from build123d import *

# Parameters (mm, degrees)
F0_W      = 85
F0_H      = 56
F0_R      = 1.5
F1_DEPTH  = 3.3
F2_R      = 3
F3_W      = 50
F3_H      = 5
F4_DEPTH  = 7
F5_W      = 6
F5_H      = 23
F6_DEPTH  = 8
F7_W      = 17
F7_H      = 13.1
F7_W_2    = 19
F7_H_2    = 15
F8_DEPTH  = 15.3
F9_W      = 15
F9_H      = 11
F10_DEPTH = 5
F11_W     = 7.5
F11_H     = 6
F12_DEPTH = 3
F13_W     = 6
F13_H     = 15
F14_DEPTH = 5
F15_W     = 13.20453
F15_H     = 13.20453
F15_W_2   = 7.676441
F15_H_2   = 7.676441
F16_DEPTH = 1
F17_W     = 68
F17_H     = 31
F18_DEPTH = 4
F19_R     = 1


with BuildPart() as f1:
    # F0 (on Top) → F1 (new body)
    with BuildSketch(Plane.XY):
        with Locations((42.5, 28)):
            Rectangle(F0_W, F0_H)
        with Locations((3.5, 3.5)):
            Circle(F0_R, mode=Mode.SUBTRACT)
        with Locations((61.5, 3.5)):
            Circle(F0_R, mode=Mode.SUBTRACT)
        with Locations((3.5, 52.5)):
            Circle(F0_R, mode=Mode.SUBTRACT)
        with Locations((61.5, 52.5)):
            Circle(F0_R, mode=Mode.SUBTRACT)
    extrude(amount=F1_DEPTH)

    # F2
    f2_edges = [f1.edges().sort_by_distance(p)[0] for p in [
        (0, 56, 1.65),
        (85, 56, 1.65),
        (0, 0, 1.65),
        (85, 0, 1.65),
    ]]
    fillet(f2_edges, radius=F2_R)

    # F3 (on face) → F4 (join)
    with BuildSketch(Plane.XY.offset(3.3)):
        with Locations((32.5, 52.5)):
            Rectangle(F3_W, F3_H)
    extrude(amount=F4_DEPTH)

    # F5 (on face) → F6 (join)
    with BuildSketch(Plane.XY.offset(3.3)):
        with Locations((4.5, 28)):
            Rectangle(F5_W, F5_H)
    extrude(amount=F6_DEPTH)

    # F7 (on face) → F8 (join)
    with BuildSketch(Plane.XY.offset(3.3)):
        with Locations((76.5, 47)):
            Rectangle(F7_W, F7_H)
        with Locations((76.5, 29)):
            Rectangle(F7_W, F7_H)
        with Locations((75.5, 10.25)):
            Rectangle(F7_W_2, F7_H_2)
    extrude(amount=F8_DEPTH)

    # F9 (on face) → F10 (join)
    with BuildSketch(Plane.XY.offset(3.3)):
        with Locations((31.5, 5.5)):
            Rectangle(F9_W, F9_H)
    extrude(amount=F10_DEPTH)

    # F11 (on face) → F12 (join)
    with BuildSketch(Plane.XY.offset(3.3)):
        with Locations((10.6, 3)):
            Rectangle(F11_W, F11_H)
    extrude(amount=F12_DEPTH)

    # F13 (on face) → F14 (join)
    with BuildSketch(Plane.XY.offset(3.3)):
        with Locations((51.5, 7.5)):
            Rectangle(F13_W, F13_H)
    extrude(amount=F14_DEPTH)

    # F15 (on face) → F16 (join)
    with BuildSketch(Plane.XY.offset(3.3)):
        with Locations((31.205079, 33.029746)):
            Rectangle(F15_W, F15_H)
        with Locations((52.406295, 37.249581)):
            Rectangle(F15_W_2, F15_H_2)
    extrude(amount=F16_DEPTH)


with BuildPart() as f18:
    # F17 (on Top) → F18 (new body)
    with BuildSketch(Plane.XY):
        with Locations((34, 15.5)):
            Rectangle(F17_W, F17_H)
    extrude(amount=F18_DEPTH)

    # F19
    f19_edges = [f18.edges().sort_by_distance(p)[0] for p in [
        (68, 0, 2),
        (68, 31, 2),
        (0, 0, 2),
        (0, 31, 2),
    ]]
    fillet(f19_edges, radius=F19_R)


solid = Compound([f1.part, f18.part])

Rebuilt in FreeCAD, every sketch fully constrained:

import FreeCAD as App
import Part
import Sketcher
from FreeCAD import Vector
Q = App.Units.Quantity


def edges_at(feature, points):
    """Names of the edges that pass closest to the given points."""
    edges = feature.Shape.Edges
    near = lambda p: min(range(len(edges)), key=lambda i: edges[i].distToShape(Part.Vertex(*p))[0])
    return sorted({f"Edge{near(p) + 1}" for p in points})

doc = App.newDocument("Part")
body = doc.addObject("PartDesign::Body", "Body")

sketch1 = doc.addObject("Sketcher::SketchObject", "Sketch")
body.addObject(sketch1)
sketch1.AttachmentSupport = (doc.XY_Plane, [""])
sketch1.MapMode = "FlatFace"
sketch1.addGeometry([
    Part.LineSegment(Vector(0, 56, 0), Vector(0, 0, 0)),
    Part.LineSegment(Vector(0, 0, 0), Vector(85, 0, 0)),
    Part.LineSegment(Vector(85, 0, 0), Vector(85, 56, 0)),
    Part.LineSegment(Vector(85, 56, 0), Vector(0, 56, 0)),
    Part.Circle(Vector(3.5, 3.5, 0), Vector(0, 0, 1), 1.5),
    Part.Circle(Vector(61.5, 3.5, 0), Vector(0, 0, 1), 1.5),
    Part.Circle(Vector(3.5, 52.5, 0), Vector(0, 0, 1), 1.5),
    Part.Circle(Vector(61.5, 52.5, 0), Vector(0, 0, 1), 1.5),
], False)
sketch1.addConstraint([
    Sketcher.Constraint("Coincident", 0, 2, 1, 1),
    Sketcher.Constraint("Coincident", 1, 2, 2, 1),
    Sketcher.Constraint("Coincident", 2, 2, 3, 1),
    Sketcher.Constraint("Coincident", 3, 2, 0, 1),
    Sketcher.Constraint("Vertical", 0),
    Sketcher.Constraint("Horizontal", 1),
    Sketcher.Constraint("Vertical", 2),
    Sketcher.Constraint("Horizontal", 3),
    Sketcher.Constraint("Coincident", 0, 2, -1, 1),
    Sketcher.Constraint("Equal", 4, 5),
    Sketcher.Constraint("Equal", 5, 6),
    Sketcher.Constraint("Equal", 6, 7),
    Sketcher.Constraint("Horizontal", 4, 3, 5, 3),
    Sketcher.Constraint("Horizontal", 6, 3, 7, 3),
    Sketcher.Constraint("Vertical", 4, 3, 6, 3),
    Sketcher.Constraint("Vertical", 5, 3, 7, 3),
    Sketcher.Constraint("Diameter", 4, Q("3 mm")),
    Sketcher.Constraint("DistanceX", 1, 1, 1, 2, Q("85 mm")),
    Sketcher.Constraint("DistanceY", 0, 2, 0, 1, Q("56 mm")),
    Sketcher.Constraint("DistanceX", 4, 3, 5, 3, Q("58 mm")),
    Sketcher.Constraint("DistanceY", 4, 3, 6, 3, Q("49 mm")),
    Sketcher.Constraint("DistanceX", -1, 1, 4, 3, Q("3.5 mm")),
    Sketcher.Constraint("DistanceY", -1, 1, 4, 3, Q("3.5 mm")),
])
pad1 = doc.addObject("PartDesign::Pad", "Pad")
body.addObject(pad1)
pad1.Profile = sketch1
pad1.Length = 3.3
doc.recompute()

fillet = doc.addObject("PartDesign::Fillet", "Fillet")
body.addObject(fillet)
fillet.Base = (pad1, edges_at(pad1, [
    (0, 56, 1.65),
    (85, 56, 1.65),
    (0, 0, 1.65),
    (85, 0, 1.65),
]))
fillet.Radius = 3

sketch2 = doc.addObject("Sketcher::SketchObject", "Sketch001")
body.addObject(sketch2)
sketch2.AttachmentSupport = (doc.XY_Plane, [""])
sketch2.MapMode = "FlatFace"
sketch2.AttachmentOffset = App.Placement(Vector(0, 0, 3.3), App.Rotation())
sketch2.addGeometry([
    Part.LineSegment(Vector(8, 55, 0), Vector(8, 50, 0)),
    Part.LineSegment(Vector(8, 50, 0), Vector(58, 50, 0)),
    Part.LineSegment(Vector(58, 50, 0), Vector(58, 55, 0)),
    Part.LineSegment(Vector(58, 55, 0), Vector(8, 55, 0)),
], False)
sketch2.addConstraint([
    Sketcher.Constraint("Coincident", 0, 2, 1, 1),
    Sketcher.Constraint("Coincident", 1, 2, 2, 1),
    Sketcher.Constraint("Coincident", 2, 2, 3, 1),
    Sketcher.Constraint("Coincident", 3, 2, 0, 1),
    Sketcher.Constraint("Vertical", 0),
    Sketcher.Constraint("Horizontal", 1),
    Sketcher.Constraint("Vertical", 2),
    Sketcher.Constraint("Horizontal", 3),
    Sketcher.Constraint("DistanceX", 1, 1, 1, 2, Q("50 mm")),
    Sketcher.Constraint("DistanceY", 0, 2, 0, 1, Q("5 mm")),
    Sketcher.Constraint("DistanceY", -1, 1, 0, 2, Q("50 mm")),
    Sketcher.Constraint("DistanceX", -1, 1, 0, 2, Q("7.5 mm")),
])
pad2 = doc.addObject("PartDesign::Pad", "Pad001")
body.addObject(pad2)
pad2.Profile = sketch2
pad2.Length = 7

sketch3 = doc.addObject("Sketcher::SketchObject", "Sketch002")
body.addObject(sketch3)
sketch3.AttachmentSupport = (doc.XY_Plane, [""])
sketch3.MapMode = "FlatFace"
sketch3.AttachmentOffset = App.Placement(Vector(0, 0, 3.3), App.Rotation())
sketch3.addGeometry([
    Part.LineSegment(Vector(2, 40, 0), Vector(2, 16, 0)),
    Part.LineSegment(Vector(2, 16, 0), Vector(8, 16, 0)),
    Part.LineSegment(Vector(8, 16, 0), Vector(8, 40, 0)),
    Part.LineSegment(Vector(8, 40, 0), Vector(2, 40, 0)),
], False)
sketch3.addConstraint([
    Sketcher.Constraint("Coincident", 0, 2, 1, 1),
    Sketcher.Constraint("Coincident", 1, 2, 2, 1),
    Sketcher.Constraint("Coincident", 2, 2, 3, 1),
    Sketcher.Constraint("Coincident", 3, 2, 0, 1),
    Sketcher.Constraint("Vertical", 0),
    Sketcher.Constraint("Horizontal", 1),
    Sketcher.Constraint("Vertical", 2),
    Sketcher.Constraint("Horizontal", 3),
    Sketcher.Constraint("DistanceX", 1, 1, 1, 2, Q("6 mm")),
    Sketcher.Constraint("DistanceY", 0, 2, 0, 1, Q("23 mm")),
    Sketcher.Constraint("DistanceX", -1, 1, 0, 2, Q("1.5 mm")),
    Sketcher.Constraint("DistanceY", -1, 1, 0, 2, Q("16.5 mm")),
])
pad3 = doc.addObject("PartDesign::Pad", "Pad002")
body.addObject(pad3)
pad3.Profile = sketch3
pad3.Length = 8

sketch4 = doc.addObject("Sketcher::SketchObject", "Sketch003")
body.addObject(sketch4)
sketch4.AttachmentSupport = (doc.XY_Plane, [""])
sketch4.MapMode = "FlatFace"
sketch4.AttachmentOffset = App.Placement(Vector(0, 0, 3.3), App.Rotation())
sketch4.addGeometry([
    Part.LineSegment(Vector(68, 54, 0), Vector(68, 40, 0)),
    Part.LineSegment(Vector(68, 40, 0), Vector(85, 40, 0)),
    Part.LineSegment(Vector(85, 40, 0), Vector(85, 54, 0)),
    Part.LineSegment(Vector(85, 54, 0), Vector(68, 54, 0)),
    Part.LineSegment(Vector(68, 36, 0), Vector(68, 22, 0)),
    Part.LineSegment(Vector(68, 22, 0), Vector(85, 22, 0)),
    Part.LineSegment(Vector(85, 22, 0), Vector(85, 36, 0)),
    Part.LineSegment(Vector(85, 36, 0), Vector(68, 36, 0)),
    Part.LineSegment(Vector(66, 18, 0), Vector(66, 3, 0)),
    Part.LineSegment(Vector(66, 3, 0), Vector(85, 3, 0)),
    Part.LineSegment(Vector(85, 3, 0), Vector(85, 18, 0)),
    Part.LineSegment(Vector(85, 18, 0), Vector(66, 18, 0)),
], False)
sketch4.addConstraint([
    Sketcher.Constraint("Coincident", 0, 2, 1, 1),
    Sketcher.Constraint("Coincident", 1, 2, 2, 1),
    Sketcher.Constraint("Coincident", 2, 2, 3, 1),
    Sketcher.Constraint("Coincident", 3, 2, 0, 1),
    Sketcher.Constraint("Coincident", 4, 2, 5, 1),
    Sketcher.Constraint("Coincident", 5, 2, 6, 1),
    Sketcher.Constraint("Coincident", 6, 2, 7, 1),
    Sketcher.Constraint("Coincident", 7, 2, 4, 1),
    Sketcher.Constraint("Coincident", 8, 2, 9, 1),
    Sketcher.Constraint("Coincident", 9, 2, 10, 1),
    Sketcher.Constraint("Coincident", 10, 2, 11, 1),
    Sketcher.Constraint("Coincident", 11, 2, 8, 1),
    Sketcher.Constraint("Vertical", 0),
    Sketcher.Constraint("Horizontal", 1),
    Sketcher.Constraint("Vertical", 2),
    Sketcher.Constraint("Horizontal", 3),
    Sketcher.Constraint("Vertical", 4),
    Sketcher.Constraint("Horizontal", 5),
    Sketcher.Constraint("Vertical", 6),
    Sketcher.Constraint("Horizontal", 7),
    Sketcher.Constraint("Vertical", 8),
    Sketcher.Constraint("Horizontal", 9),
    Sketcher.Constraint("Vertical", 10),
    Sketcher.Constraint("Horizontal", 11),
    Sketcher.Constraint("Vertical", 3, 2, 4, 2),
    Sketcher.Constraint("Vertical", 2, 2, 5, 2),
    Sketcher.Constraint("Vertical", 6, 2, 9, 2),
    Sketcher.Constraint("Equal", 2, 4),
    Sketcher.Constraint("DistanceX", 1, 1, 1, 2, Q("17 mm")),
    Sketcher.Constraint("DistanceX", 9, 1, 9, 2, Q("19 mm")),
    Sketcher.Constraint("DistanceY", 8, 2, 8, 1, Q("15 mm")),
    Sketcher.Constraint("DistanceY", 0, 2, 0, 1, Q("13.1 mm")),
    Sketcher.Constraint("DistanceX", -1, 1, 0, 2, Q("68 mm")),
    Sketcher.Constraint("DistanceY", 4, 2, 0, 2, Q("18 mm")),
    Sketcher.Constraint("DistanceY", 8, 2, 4, 2, Q("19.7 mm")),
    Sketcher.Constraint("DistanceY", -1, 1, 0, 2, Q("40.45 mm")),
])
pad4 = doc.addObject("PartDesign::Pad", "Pad003")
body.addObject(pad4)
pad4.Profile = sketch4
pad4.Length = 15.3

sketch5 = doc.addObject("Sketcher::SketchObject", "Sketch004")
body.addObject(sketch5)
sketch5.AttachmentSupport = (doc.XY_Plane, [""])
sketch5.MapMode = "FlatFace"
sketch5.AttachmentOffset = App.Placement(Vector(0, 0, 3.3), App.Rotation())
sketch5.addGeometry([
    Part.LineSegment(Vector(24, 11, 0), Vector(24, 0, 0)),
    Part.LineSegment(Vector(24, 0, 0), Vector(39, 0, 0)),
    Part.LineSegment(Vector(39, 0, 0), Vector(39, 11, 0)),
    Part.LineSegment(Vector(39, 11, 0), Vector(24, 11, 0)),
], False)
sketch5.addConstraint([
    Sketcher.Constraint("Coincident", 0, 2, 1, 1),
    Sketcher.Constraint("Coincident", 1, 2, 2, 1),
    Sketcher.Constraint("Coincident", 2, 2, 3, 1),
    Sketcher.Constraint("Coincident", 3, 2, 0, 1),
    Sketcher.Constraint("Vertical", 0),
    Sketcher.Constraint("Horizontal", 1),
    Sketcher.Constraint("Vertical", 2),
    Sketcher.Constraint("Horizontal", 3),
    Sketcher.Constraint("PointOnObject", 0, 2, -1),
    Sketcher.Constraint("DistanceX", 1, 1, 1, 2, Q("15 mm")),
    Sketcher.Constraint("DistanceY", 0, 2, 0, 1, Q("11 mm")),
    Sketcher.Constraint("DistanceX", -1, 1, 0, 2, Q("24 mm")),
])
pad5 = doc.addObject("PartDesign::Pad", "Pad004")
body.addObject(pad5)
pad5.Profile = sketch5
pad5.Length = 5

sketch6 = doc.addObject("Sketcher::SketchObject", "Sketch005")
body.addObject(sketch6)
sketch6.AttachmentSupport = (doc.XY_Plane, [""])
sketch6.MapMode = "FlatFace"
sketch6.AttachmentOffset = App.Placement(Vector(0, 0, 3.3), App.Rotation())
sketch6.addGeometry([
    Part.LineSegment(Vector(7, 6, 0), Vector(7, 0, 0)),
    Part.LineSegment(Vector(7, 0, 0), Vector(14, 0, 0)),
    Part.LineSegment(Vector(14, 0, 0), Vector(14, 6, 0)),
    Part.LineSegment(Vector(14, 6, 0), Vector(7, 6, 0)),
], False)
sketch6.addConstraint([
    Sketcher.Constraint("Coincident", 0, 2, 1, 1),
    Sketcher.Constraint("Coincident", 1, 2, 2, 1),
    Sketcher.Constraint("Coincident", 2, 2, 3, 1),
    Sketcher.Constraint("Coincident", 3, 2, 0, 1),
    Sketcher.Constraint("Vertical", 0),
    Sketcher.Constraint("Horizontal", 1),
    Sketcher.Constraint("Vertical", 2),
    Sketcher.Constraint("Horizontal", 3),
    Sketcher.Constraint("PointOnObject", 0, 2, -1),
    Sketcher.Constraint("DistanceY", 0, 2, 0, 1, Q("6 mm")),
    Sketcher.Constraint("DistanceX", 1, 1, 1, 2, Q("7.5 mm")),
    Sketcher.Constraint("DistanceX", -1, 1, 0, 2, Q("6.85 mm")),
])
pad6 = doc.addObject("PartDesign::Pad", "Pad005")
body.addObject(pad6)
pad6.Profile = sketch6
pad6.Length = 3

sketch7 = doc.addObject("Sketcher::SketchObject", "Sketch006")
body.addObject(sketch7)
sketch7.AttachmentSupport = (doc.XY_Plane, [""])
sketch7.MapMode = "FlatFace"
sketch7.AttachmentOffset = App.Placement(Vector(0, 0, 3.3), App.Rotation())
sketch7.addGeometry([
    Part.LineSegment(Vector(48, 15, 0), Vector(48, 0, 0)),
    Part.LineSegment(Vector(48, 0, 0), Vector(54, 0, 0)),
    Part.LineSegment(Vector(54, 0, 0), Vector(54, 15, 0)),
    Part.LineSegment(Vector(54, 15, 0), Vector(48, 15, 0)),
], False)
sketch7.addConstraint([
    Sketcher.Constraint("Coincident", 0, 2, 1, 1),
    Sketcher.Constraint("Coincident", 1, 2, 2, 1),
    Sketcher.Constraint("Coincident", 2, 2, 3, 1),
    Sketcher.Constraint("Coincident", 3, 2, 0, 1),
    Sketcher.Constraint("Vertical", 0),
    Sketcher.Constraint("Horizontal", 1),
    Sketcher.Constraint("Vertical", 2),
    Sketcher.Constraint("Horizontal", 3),
    Sketcher.Constraint("PointOnObject", 0, 2, -1),
    Sketcher.Constraint("DistanceX", 1, 1, 1, 2, Q("6 mm")),
    Sketcher.Constraint("DistanceY", 0, 2, 0, 1, Q("15 mm")),
    Sketcher.Constraint("DistanceX", -1, 1, 0, 2, Q("48.5 mm")),
])
pad7 = doc.addObject("PartDesign::Pad", "Pad006")
body.addObject(pad7)
pad7.Profile = sketch7
pad7.Length = 5

sketch8 = doc.addObject("Sketcher::SketchObject", "Sketch007")
body.addObject(sketch8)
sketch8.AttachmentSupport = (doc.XY_Plane, [""])
sketch8.MapMode = "FlatFace"
sketch8.AttachmentOffset = App.Placement(Vector(0, 0, 3.3), App.Rotation())
sketch8.addGeometry([
    Part.LineSegment(Vector(25, 40, 0), Vector(25, 26, 0)),
    Part.LineSegment(Vector(25, 26, 0), Vector(38, 26, 0)),
    Part.LineSegment(Vector(38, 26, 0), Vector(38, 40, 0)),
    Part.LineSegment(Vector(38, 40, 0), Vector(25, 40, 0)),
    Part.LineSegment(Vector(49, 41, 0), Vector(49, 33, 0)),
    Part.LineSegment(Vector(49, 33, 0), Vector(56, 33, 0)),
    Part.LineSegment(Vector(56, 33, 0), Vector(56, 41, 0)),
    Part.LineSegment(Vector(56, 41, 0), Vector(49, 41, 0)),
], False)
sketch8.addConstraint([
    Sketcher.Constraint("Coincident", 0, 2, 1, 1),
    Sketcher.Constraint("Coincident", 1, 2, 2, 1),
    Sketcher.Constraint("Coincident", 2, 2, 3, 1),
    Sketcher.Constraint("Coincident", 3, 2, 0, 1),
    Sketcher.Constraint("Coincident", 4, 2, 5, 1),
    Sketcher.Constraint("Coincident", 5, 2, 6, 1),
    Sketcher.Constraint("Coincident", 6, 2, 7, 1),
    Sketcher.Constraint("Coincident", 7, 2, 4, 1),
    Sketcher.Constraint("Vertical", 0),
    Sketcher.Constraint("Horizontal", 1),
    Sketcher.Constraint("Vertical", 2),
    Sketcher.Constraint("Horizontal", 3),
    Sketcher.Constraint("Vertical", 4),
    Sketcher.Constraint("Horizontal", 5),
    Sketcher.Constraint("Vertical", 6),
    Sketcher.Constraint("Horizontal", 7),
    Sketcher.Constraint("Equal", 3, 0),
    Sketcher.Constraint("Equal", 7, 4),
    Sketcher.Constraint("DistanceX", 1, 1, 1, 2, Q("13.20453 mm")),
    Sketcher.Constraint("DistanceX", 5, 1, 5, 2, Q("7.676441 mm")),
    Sketcher.Constraint("DistanceY", -1, 1, 6, 2, Q("41.087801 mm")),
    Sketcher.Constraint("DistanceX", 3, 2, 5, 2, Q("31.641701 mm")),
    Sketcher.Constraint("DistanceY", -1, 1, 0, 2, Q("26.427481 mm")),
    Sketcher.Constraint("DistanceX", -1, 1, 0, 2, Q("24.602814 mm")),
])
pad8 = doc.addObject("PartDesign::Pad", "Pad007")
body.addObject(pad8)
pad8.Profile = sketch8
pad8.Length = 1
body2 = doc.addObject("PartDesign::Body", "Body001")

sketch9 = doc.addObject("Sketcher::SketchObject", "Sketch008")
body2.addObject(sketch9)
sketch9.AttachmentSupport = (doc.getObject("XY_Plane001"), [""])
sketch9.MapMode = "FlatFace"
sketch9.addGeometry([
    Part.LineSegment(Vector(0, 31, 0), Vector(0, 0, 0)),
    Part.LineSegment(Vector(0, 0, 0), Vector(68, 0, 0)),
    Part.LineSegment(Vector(68, 0, 0), Vector(68, 31, 0)),
    Part.LineSegment(Vector(68, 31, 0), Vector(0, 31, 0)),
], False)
sketch9.addConstraint([
    Sketcher.Constraint("Coincident", 0, 2, 1, 1),
    Sketcher.Constraint("Coincident", 1, 2, 2, 1),
    Sketcher.Constraint("Coincident", 2, 2, 3, 1),
    Sketcher.Constraint("Coincident", 3, 2, 0, 1),
    Sketcher.Constraint("Vertical", 0),
    Sketcher.Constraint("Horizontal", 1),
    Sketcher.Constraint("Vertical", 2),
    Sketcher.Constraint("Horizontal", 3),
    Sketcher.Constraint("Coincident", 0, 2, -1, 1),
    Sketcher.Constraint("DistanceX", 1, 1, 1, 2, Q("68 mm")),
    Sketcher.Constraint("DistanceY", 0, 2, 0, 1, Q("31 mm")),
])
pad9 = doc.addObject("PartDesign::Pad", "Pad008")
body2.addObject(pad9)
pad9.Profile = sketch9
pad9.Length = 4
doc.recompute()

fillet2 = doc.addObject("PartDesign::Fillet", "Fillet001")
body2.addObject(fillet2)
fillet2.Base = (pad9, edges_at(pad9, [
    (68, 0, 2),
    (68, 31, 2),
    (0, 0, 2),
    (0, 31, 2),
]))
fillet2.Radius = 1

doc.recompute()
